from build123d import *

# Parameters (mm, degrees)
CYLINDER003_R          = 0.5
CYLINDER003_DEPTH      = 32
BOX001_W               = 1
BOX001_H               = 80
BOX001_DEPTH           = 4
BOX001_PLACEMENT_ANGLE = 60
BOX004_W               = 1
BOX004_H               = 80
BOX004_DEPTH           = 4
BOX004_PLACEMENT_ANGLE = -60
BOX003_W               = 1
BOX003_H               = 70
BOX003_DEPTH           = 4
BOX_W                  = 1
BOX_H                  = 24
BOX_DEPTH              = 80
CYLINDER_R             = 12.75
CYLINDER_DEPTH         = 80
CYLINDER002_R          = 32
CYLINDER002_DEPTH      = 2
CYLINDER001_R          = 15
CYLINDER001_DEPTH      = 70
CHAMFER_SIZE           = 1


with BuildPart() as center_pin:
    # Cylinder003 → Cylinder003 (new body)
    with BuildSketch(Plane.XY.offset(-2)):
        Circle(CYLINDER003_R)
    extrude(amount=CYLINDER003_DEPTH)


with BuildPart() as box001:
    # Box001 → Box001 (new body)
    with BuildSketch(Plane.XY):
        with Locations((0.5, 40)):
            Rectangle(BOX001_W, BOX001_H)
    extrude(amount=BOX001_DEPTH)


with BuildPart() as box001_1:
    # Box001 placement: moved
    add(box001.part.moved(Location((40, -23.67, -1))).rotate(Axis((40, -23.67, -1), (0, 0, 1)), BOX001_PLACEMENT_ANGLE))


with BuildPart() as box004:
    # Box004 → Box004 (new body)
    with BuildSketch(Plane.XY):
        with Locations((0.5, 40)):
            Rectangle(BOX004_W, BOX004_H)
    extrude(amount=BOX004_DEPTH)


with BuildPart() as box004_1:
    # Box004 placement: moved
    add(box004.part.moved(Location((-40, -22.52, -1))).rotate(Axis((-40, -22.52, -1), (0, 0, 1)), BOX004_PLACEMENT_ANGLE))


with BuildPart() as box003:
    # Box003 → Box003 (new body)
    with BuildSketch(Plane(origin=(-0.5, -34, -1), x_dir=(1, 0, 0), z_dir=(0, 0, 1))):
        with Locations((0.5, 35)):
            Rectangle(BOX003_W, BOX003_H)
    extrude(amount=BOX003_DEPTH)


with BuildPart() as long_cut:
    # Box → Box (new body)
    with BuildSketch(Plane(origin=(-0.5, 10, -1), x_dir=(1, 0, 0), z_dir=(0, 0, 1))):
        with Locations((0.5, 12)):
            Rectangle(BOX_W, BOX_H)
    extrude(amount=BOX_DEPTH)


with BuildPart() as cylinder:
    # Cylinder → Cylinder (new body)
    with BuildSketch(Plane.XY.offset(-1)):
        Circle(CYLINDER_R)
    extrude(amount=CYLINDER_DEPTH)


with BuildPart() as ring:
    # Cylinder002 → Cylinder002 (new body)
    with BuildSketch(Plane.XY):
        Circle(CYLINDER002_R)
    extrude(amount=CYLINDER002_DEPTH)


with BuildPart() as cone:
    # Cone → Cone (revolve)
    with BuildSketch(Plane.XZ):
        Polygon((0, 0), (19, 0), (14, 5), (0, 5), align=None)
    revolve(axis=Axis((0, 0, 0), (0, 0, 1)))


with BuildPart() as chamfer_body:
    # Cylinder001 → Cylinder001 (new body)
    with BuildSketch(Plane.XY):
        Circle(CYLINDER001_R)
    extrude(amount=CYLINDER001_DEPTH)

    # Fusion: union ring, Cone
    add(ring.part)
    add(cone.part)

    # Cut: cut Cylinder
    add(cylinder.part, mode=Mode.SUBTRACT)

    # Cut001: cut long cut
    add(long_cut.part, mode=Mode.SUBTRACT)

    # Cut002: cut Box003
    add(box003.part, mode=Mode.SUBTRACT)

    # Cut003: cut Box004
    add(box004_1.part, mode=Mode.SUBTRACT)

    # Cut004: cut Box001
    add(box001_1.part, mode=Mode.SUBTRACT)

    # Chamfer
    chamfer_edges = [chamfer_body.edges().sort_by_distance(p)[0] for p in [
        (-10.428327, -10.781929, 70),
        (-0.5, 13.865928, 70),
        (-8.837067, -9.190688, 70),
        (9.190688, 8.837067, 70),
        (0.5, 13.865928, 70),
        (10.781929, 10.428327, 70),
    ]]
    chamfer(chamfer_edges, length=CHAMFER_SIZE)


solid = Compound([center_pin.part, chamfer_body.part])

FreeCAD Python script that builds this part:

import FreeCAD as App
import Part
import Sketcher
from FreeCAD import Vector


def edges_at(feature, points):
    """Names of the edges that pass closest to the given points."""
    edges = feature.Shape.Edges
    near = lambda p: min(range(len(edges)), key=lambda i: edges[i].distToShape(Part.Vertex(*p))[0])
    return sorted({f"Edge{near(p) + 1}" for p in points})


def add_polygon(sketch, points):
    """Adds a closed chain of lines whose ends are joined by coincident constraints."""
    first, n = sketch.GeometryCount, len(points)
    for a, b in zip(points, points[1:] + points[:1]):
        sketch.addGeometry(Part.LineSegment(App.Vector(*a, 0), App.Vector(*b, 0)), False)
    for i in range(n):
        sketch.addConstraint(Sketcher.Constraint("Coincident", first + i, 2, first + (i + 1) % n, 1))

doc = App.newDocument("Part")
body = doc.addObject("PartDesign::Body", "Body")

# Sketch on XY plane
sketch1 = body.newObject("Sketcher::SketchObject", "Sketch")
sketch1.AttachmentSupport = (doc.getObject("XY_Plane"), [""])
sketch1.MapMode = "FlatFace"
sketch1.AttachmentOffset = App.Placement(Vector(0, 0, -2), App.Rotation())
sketch1.addGeometry(Part.Circle(Vector(0, 0, 0), Vector(0, 0, 1), 0.5), False)
sketch1.addConstraint(Sketcher.Constraint("Coincident", 0, 3, -1, 1))
sketch1.addConstraint(Sketcher.Constraint("Diameter", 0, 1.0))
pad1 = body.newObject("PartDesign::Pad", "Pad")
pad1.Profile = sketch1
pad1.Length = 32
body2 = doc.addObject("PartDesign::Body", "Body001")

# Sketch on XY plane
sketch2 = body2.newObject("Sketcher::SketchObject", "Sketch001")
sketch2.AttachmentSupport = (doc.getObject("XY_Plane001"), [""])
sketch2.MapMode = "FlatFace"
add_polygon(sketch2, [(0, 80), (0, 0), (1, 0), (1, 80)])  # lines 0-3
sketch2.addConstraint(Sketcher.Constraint("Vertical", 0))
sketch2.addConstraint(Sketcher.Constraint("Horizontal", 1))
sketch2.addConstraint(Sketcher.Constraint("Vertical", 2))
sketch2.addConstraint(Sketcher.Constraint("Horizontal", 3))
sketch2.addConstraint(Sketcher.Constraint("Coincident", 0, 2, -1, 1))
sketch2.addConstraint(Sketcher.Constraint("DistanceX", 1, 1, 1, 2, 1.0))
sketch2.addConstraint(Sketcher.Constraint("DistanceY", 0, 2, 0, 1, 80.0))
pad2 = body2.newObject("PartDesign::Pad", "Pad001")
pad2.Profile = sketch2
pad2.Length = 4
body3 = doc.addObject("PartDesign::Body", "Body002")
doc.recompute()

body2.Placement = App.Placement(Vector(40, -23.67, -1), App.Rotation(Vector(0, 0, 1), 60))
boolean = body3.newObject("PartDesign::Boolean", "Boolean")
boolean.Type = "Fuse"
boolean.addObjects([body2])
body4 = doc.addObject("PartDesign::Body", "Body003")

# Sketch on XY plane
sketch3 = body4.newObject("Sketcher::SketchObject", "Sketch002")
sketch3.AttachmentSupport = (doc.getObject("XY_Plane003"), [""])
sketch3.MapMode = "FlatFace"
add_polygon(sketch3, [(0, 80), (0, 0), (1, 0), (1, 80)])  # lines 0-3
sketch3.addConstraint(Sketcher.Constraint("Vertical", 0))
sketch3.addConstraint(Sketcher.Constraint("Horizontal", 1))
sketch3.addConstraint(Sketcher.Constraint("Vertical", 2))
sketch3.addConstraint(Sketcher.Constraint("Horizontal", 3))
sketch3.addConstraint(Sketcher.Constraint("Coincident", 0, 2, -1, 1))
sketch3.addConstraint(Sketcher.Constraint("DistanceX", 1, 1, 1, 2, 1.0))
sketch3.addConstraint(Sketcher.Constraint("DistanceY", 0, 2, 0, 1, 80.0))
pad3 = body4.newObject("PartDesign::Pad", "Pad002")
pad3.Profile = sketch3
pad3.Length = 4
body5 = doc.addObject("PartDesign::Body", "Body004")
doc.recompute()

body4.Placement = App.Placement(Vector(-40, -22.52, -1), App.Rotation(Vector(0, 0, 1), 300))
boolean2 = body5.newObject("PartDesign::Boolean", "Boolean001")
boolean2.Type = "Fuse"
boolean2.addObjects([body4])
body6 = doc.addObject("PartDesign::Body", "Body005")

# Sketch on XY plane
sketch4 = body6.newObject("Sketcher::SketchObject", "Sketch003")
sketch4.AttachmentSupport = (doc.getObject("XY_Plane005"), [""])
sketch4.MapMode = "FlatFace"
sketch4.AttachmentOffset = App.Placement(Vector(0, 0, -1), App.Rotation())
add_polygon(sketch4, [(-0.5, 36), (-0.5, -34), (0.5, -34), (0.5, 36)])  # lines 0-3
sketch4.addConstraint(Sketcher.Constraint("Vertical", 0))
sketch4.addConstraint(Sketcher.Constraint("Horizontal", 1))
sketch4.addConstraint(Sketcher.Constraint("Vertical", 2))
sketch4.addConstraint(Sketcher.Constraint("Horizontal", 3))
sketch4.addConstraint(Sketcher.Constraint("DistanceX", 1, 1, 1, 2, 1.0))
sketch4.addConstraint(Sketcher.Constraint("DistanceY", 0, 2, 0, 1, 70.0))
sketch4.addConstraint(Sketcher.Constraint("DistanceY", 0, 2, -1, 1, 34.0))
sketch4.addConstraint(Sketcher.Constraint("DistanceX", 0, 2, -1, 1, 0.5))
pad4 = body6.newObject("PartDesign::Pad", "Pad003")
pad4.Profile = sketch4
pad4.Length = 4
body7 = doc.addObject("PartDesign::Body", "Body006")

# Sketch on XY plane
sketch5 = body7.newObject("Sketcher::SketchObject", "Sketch004")
sketch5.AttachmentSupport = (doc.getObject("XY_Plane006"), [""])
sketch5.MapMode = "FlatFace"
sketch5.AttachmentOffset = App.Placement(Vector(0, 0, -1), App.Rotation())
add_polygon(sketch5, [(-0.5, 34), (-0.5, 10), (0.5, 10), (0.5, 34)])  # lines 0-3
sketch5.addConstraint(Sketcher.Constraint("Vertical", 0))
sketch5.addConstraint(Sketcher.Constraint("Horizontal", 1))
sketch5.addConstraint(Sketcher.Constraint("Vertical", 2))
sketch5.addConstraint(Sketcher.Constraint("Horizontal", 3))
sketch5.addConstraint(Sketcher.Constraint("DistanceX", 1, 1, 1, 2, 1.0))
sketch5.addConstraint(Sketcher.Constraint("DistanceY", 0, 2, 0, 1, 24.0))
sketch5.addConstraint(Sketcher.Constraint("DistanceY", -1, 1, 0, 2, 10.0))
sketch5.addConstraint(Sketcher.Constraint("DistanceX", 0, 2, -1, 1, 0.5))
pad5 = body7.newObject("PartDesign::Pad", "Pad004")
pad5.Profile = sketch5
pad5.Length = 80
body8 = doc.addObject("PartDesign::Body", "Body007")

# Sketch on XY plane
sketch6 = body8.newObject("Sketcher::SketchObject", "Sketch005")
sketch6.AttachmentSupport = (doc.getObject("XY_Plane007"), [""])
sketch6.MapMode = "FlatFace"
sketch6.AttachmentOffset = App.Placement(Vector(0, 0, -1), App.Rotation())
sketch6.addGeometry(Part.Circle(Vector(0, 0, 0), Vector(0, 0, 1), 13), False)
sketch6.addConstraint(Sketcher.Constraint("Coincident", 0, 3, -1, 1))
sketch6.addConstraint(Sketcher.Constraint("Diameter", 0, 25.5))
pad6 = body8.newObject("PartDesign::Pad", "Pad005")
pad6.Profile = sketch6
pad6.Length = 80
body9 = doc.addObject("PartDesign::Body", "Body008")

# Sketch on XY plane
sketch7 = body9.newObject("Sketcher::SketchObject", "Sketch006")
sketch7.AttachmentSupport = (doc.getObject("XY_Plane008"), [""])
sketch7.MapMode = "FlatFace"
sketch7.addGeometry(Part.Circle(Vector(0, 0, 0), Vector(0, 0, 1), 32), False)
sketch7.addConstraint(Sketcher.Constraint("Coincident", 0, 3, -1, 1))
sketch7.addConstraint(Sketcher.Constraint("Diameter", 0, 64.0))
pad7 = body9.newObject("PartDesign::Pad", "Pad006")
pad7.Profile = sketch7
pad7.Length = 2
body10 = doc.addObject("PartDesign::Body", "Body009")

# Sketch on XZ plane
sketch8 = body10.newObject("Sketcher::SketchObject", "Sketch007")
sketch8.AttachmentSupport = (doc.getObject("XZ_Plane009"), [""])
sketch8.MapMode = "FlatFace"
add_polygon(sketch8, [(0, 0), (19, 0), (14, 5), (0, 5)])  # lines 0-3
sketch8.addConstraint(Sketcher.Constraint("Horizontal", 0))
sketch8.addConstraint(Sketcher.Constraint("Horizontal", 2))
sketch8.addConstraint(Sketcher.Constraint("Vertical", 3))
sketch8.addConstraint(Sketcher.Constraint("Coincident", 3, 2, -1, 1))
sketch8.addConstraint(Sketcher.Constraint("DistanceX", 0, 1, 0, 2, 19.0))
sketch8.addConstraint(Sketcher.Constraint("DistanceX", 2, 2, 2, 1, 14.0))
sketch8.addConstraint(Sketcher.Constraint("DistanceY", 3, 2, 3, 1, 5.0))
revolution = body10.newObject("PartDesign::Revolution", "Revolution")
revolution.Profile = sketch8
revolution.ReferenceAxis = (sketch8, ["V_Axis"])
revolution.Angle = 360
body11 = doc.addObject("PartDesign::Body", "Body010")

# Sketch on XY plane
sketch9 = body11.newObject("Sketcher::SketchObject", "Sketch008")
sketch9.AttachmentSupport = (doc.getObject("XY_Plane010"), [""])
sketch9.MapMode = "FlatFace"
sketch9.addGeometry(Part.Circle(Vector(0, 0, 0), Vector(0, 0, 1), 15), False)
sketch9.addConstraint(Sketcher.Constraint("Coincident", 0, 3, -1, 1))
sketch9.addConstraint(Sketcher.Constraint("Diameter", 0, 30.0))
pad8 = body11.newObject("PartDesign::Pad", "Pad007")
pad8.Profile = sketch9
pad8.Length = 70
doc.recompute()

boolean3 = body11.newObject("PartDesign::Boolean", "Boolean002")
boolean3.Type = "Fuse"
boolean3.addObjects([body9])
doc.recompute()

boolean4 = body11.newObject("PartDesign::Boolean", "Boolean003")
boolean4.Type = "Fuse"
boolean4.addObjects([body10])
doc.recompute()

boolean5 = body11.newObject("PartDesign::Boolean", "Boolean004")
boolean5.Type = "Cut"
boolean5.addObjects([body8])
doc.recompute()

boolean6 = body11.newObject("PartDesign::Boolean", "Boolean005")
boolean6.Type = "Cut"
boolean6.addObjects([body7])
doc.recompute()

boolean7 = body11.newObject("PartDesign::Boolean", "Boolean006")
boolean7.Type = "Cut"
boolean7.addObjects([body6])
doc.recompute()

boolean8 = body11.newObject("PartDesign::Boolean", "Boolean007")
boolean8.Type = "Cut"
boolean8.addObjects([body5])
doc.recompute()

boolean9 = body11.newObject("PartDesign::Boolean", "Boolean008")
boolean9.Type = "Cut"
boolean9.addObjects([body3])
doc.recompute()

chamfer = body11.newObject("PartDesign::Chamfer", "Chamfer")
chamfer.Base = (boolean9, edges_at(boolean9, [
    (-10.428, -10.782, 70),
    (-0.5, 13.866, 70),
    (0, -12.75, 70),
    (0, -12.75, 70),
    (0.5, 13.866, 70),
    (10.782, 10.428, 70),
]))
chamfer.Size = 1

doc.recompute()
